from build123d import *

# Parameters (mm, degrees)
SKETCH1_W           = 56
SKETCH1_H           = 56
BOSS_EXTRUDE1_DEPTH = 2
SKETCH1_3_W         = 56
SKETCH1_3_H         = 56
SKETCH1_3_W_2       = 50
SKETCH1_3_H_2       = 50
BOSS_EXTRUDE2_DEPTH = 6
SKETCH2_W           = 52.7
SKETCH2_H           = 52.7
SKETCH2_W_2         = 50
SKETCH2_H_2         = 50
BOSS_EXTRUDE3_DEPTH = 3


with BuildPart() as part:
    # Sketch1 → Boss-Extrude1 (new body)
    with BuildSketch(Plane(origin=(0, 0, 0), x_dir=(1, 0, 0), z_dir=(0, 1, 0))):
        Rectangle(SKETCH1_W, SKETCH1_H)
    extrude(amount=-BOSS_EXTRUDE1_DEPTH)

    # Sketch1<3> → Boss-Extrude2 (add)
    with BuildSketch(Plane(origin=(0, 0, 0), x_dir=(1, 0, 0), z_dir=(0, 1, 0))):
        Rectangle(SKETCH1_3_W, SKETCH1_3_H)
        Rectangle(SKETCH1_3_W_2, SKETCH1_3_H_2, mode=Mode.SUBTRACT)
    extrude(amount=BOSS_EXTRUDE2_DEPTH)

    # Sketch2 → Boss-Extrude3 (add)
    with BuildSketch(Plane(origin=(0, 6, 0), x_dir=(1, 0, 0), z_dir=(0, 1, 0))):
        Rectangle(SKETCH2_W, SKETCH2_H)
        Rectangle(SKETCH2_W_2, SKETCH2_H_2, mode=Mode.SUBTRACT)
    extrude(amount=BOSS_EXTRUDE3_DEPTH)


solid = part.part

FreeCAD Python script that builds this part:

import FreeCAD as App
import Part
import Sketcher
from FreeCAD import Vector

doc = App.newDocument("Part")
body = doc.addObject("PartDesign::Body", "Body")

# Sketch on XZ plane
sketch1 = body.newObject("Sketcher::SketchObject", "Sketch")
sketch1.AttachmentSupport = (doc.getObject("XZ_Plane"), [""])
sketch1.MapMode = "FlatFace"
sketch1.addGeometry(Part.LineSegment(Vector(-28, -28, 0), Vector(-28, 28, 0)), False)
sketch1.addGeometry(Part.LineSegment(Vector(-28, 28, 0), Vector(28, 28, 0)), False)
sketch1.addGeometry(Part.LineSegment(Vector(28, 28, 0), Vector(28, -28, 0)), False)
sketch1.addGeometry(Part.LineSegment(Vector(28, -28, 0), Vector(-28, -28, 0)), False)
sketch1.addConstraint(Sketcher.Constraint("Coincident", 0, 2, 1, 1))
sketch1.addConstraint(Sketcher.Constraint("Coincident", 1, 2, 2, 1))
sketch1.addConstraint(Sketcher.Constraint("Coincident", 2, 2, 3, 1))
sketch1.addConstraint(Sketcher.Constraint("Coincident", 3, 2, 0, 1))
sketch1.addConstraint(Sketcher.Constraint("Vertical", 0))
sketch1.addConstraint(Sketcher.Constraint("Horizontal", 1))
sketch1.addConstraint(Sketcher.Constraint("Vertical", 2))
sketch1.addConstraint(Sketcher.Constraint("Horizontal", 3))
sketch1.addConstraint(Sketcher.Constraint("Symmetric", 0, 2, 2, 2, -1, 1))
sketch1.addConstraint(Sketcher.Constraint("Equal", 3, 0))
sketch1.addConstraint(Sketcher.Constraint("DistanceX", 1, 1, 1, 2, 56.0))
pad1 = body.newObject("PartDesign::Pad", "Pad")
pad1.Profile = sketch1
pad1.Length = 2

# Sketch on XZ plane
sketch2 = body.newObject("Sketcher::SketchObject", "Sketch001")
sketch2.AttachmentSupport = (doc.getObject("XZ_Plane"), [""])
sketch2.MapMode = "FlatFace"
sketch2.addGeometry(Part.LineSegment(Vector(-28, -28, 0), Vector(-28, 28, 0)), False)
sketch2.addGeometry(Part.LineSegment(Vector(-28, 28, 0), Vector(28, 28, 0)), False)
sketch2.addGeometry(Part.LineSegment(Vector(28, 28, 0), Vector(28, -28, 0)), False)
sketch2.addGeometry(Part.LineSegment(Vector(28, -28, 0), Vector(-28, -28, 0)), False)
sketch2.addGeometry(Part.LineSegment(Vector(25, 25, 0), Vector(-25, 25, 0)), False)
sketch2.addGeometry(Part.LineSegment(Vector(-25, 25, 0), Vector(-25, -25, 0)), False)
sketch2.addGeometry(Part.LineSegment(Vector(-25, -25, 0), Vector(25, -25, 0)), False)
sketch2.addGeometry(Part.LineSegment(Vector(25, -25, 0), Vector(25, 25, 0)), False)
sketch2.addConstraint(Sketcher.Constraint("Coincident", 0, 2, 1, 1))
sketch2.addConstraint(Sketcher.Constraint("Coincident", 1, 2, 2, 1))
sketch2.addConstraint(Sketcher.Constraint("Coincident", 2, 2, 3, 1))
sketch2.addConstraint(Sketcher.Constraint("Coincident", 3, 2, 0, 1))
sketch2.addConstraint(Sketcher.Constraint("Coincident", 4, 2, 5, 1))
sketch2.addConstraint(Sketcher.Constraint("Coincident", 5, 2, 6, 1))
sketch2.addConstraint(Sketcher.Constraint("Coincident", 6, 2, 7, 1))
sketch2.addConstraint(Sketcher.Constraint("Coincident", 7, 2, 4, 1))
sketch2.addConstraint(Sketcher.Constraint("Vertical", 0))
sketch2.addConstraint(Sketcher.Constraint("Horizontal", 1))
sketch2.addConstraint(Sketcher.Constraint("Vertical", 2))
sketch2.addConstraint(Sketcher.Constraint("Horizontal", 3))
sketch2.addConstraint(Sketcher.Constraint("Horizontal", 4))
sketch2.addConstraint(Sketcher.Constraint("Vertical", 5))
sketch2.addConstraint(Sketcher.Constraint("Horizontal", 6))
sketch2.addConstraint(Sketcher.Constraint("Vertical", 7))
sketch2.addConstraint(Sketcher.Constraint("Symmetric", 0, 2, 2, 2, -1, 1))
sketch2.addConstraint(Sketcher.Constraint("Symmetric", 4, 2, 6, 2, -1, 1))
sketch2.addConstraint(Sketcher.Constraint("Equal", 3, 0))
sketch2.addConstraint(Sketcher.Constraint("Equal", 6, 5))
sketch2.addConstraint(Sketcher.Constraint("DistanceX", 1, 1, 1, 2, 56.0))
sketch2.addConstraint(Sketcher.Constraint("DistanceX", 4, 2, 4, 1, 50.0))
pad2 = body.newObject("PartDesign::Pad", "Pad001")
pad2.Profile = sketch2
pad2.Length = 6
pad2.Reversed = True

# Sketch on XZ plane
sketch3 = body.newObject("Sketcher::SketchObject", "Sketch002")
sketch3.AttachmentSupport = (doc.getObject("XZ_Plane"), [""])
sketch3.MapMode = "FlatFace"
sketch3.AttachmentOffset = App.Placement(Vector(0, 0, -6), App.Rotation())
sketch3.addGeometry(Part.LineSegment(Vector(-26.35, -26.35, 0), Vector(-26.35, 26.35, 0)), False)
sketch3.addGeometry(Part.LineSegment(Vector(-26.35, 26.35, 0), Vector(26.35, 26.35, 0)), False)
sketch3.addGeometry(Part.LineSegment(Vector(26.35, 26.35, 0), Vector(26.35, -26.35, 0)), False)
sketch3.addGeometry(Part.LineSegment(Vector(26.35, -26.35, 0), Vector(-26.35, -26.35, 0)), False)
sketch3.addGeometry(Part.LineSegment(Vector(25, 25, 0), Vector(-25, 25, 0)), False)
sketch3.addGeometry(Part.LineSegment(Vector(-25, 25, 0), Vector(-25, -25, 0)), False)
sketch3.addGeometry(Part.LineSegment(Vector(-25, -25, 0), Vector(25, -25, 0)), False)
sketch3.addGeometry(Part.LineSegment(Vector(25, -25, 0), Vector(25, 25, 0)), False)
sketch3.addConstraint(Sketcher.Constraint("Coincident", 0, 2, 1, 1))
sketch3.addConstraint(Sketcher.Constraint("Coincident", 1, 2, 2, 1))
sketch3.addConstraint(Sketcher.Constraint("Coincident", 2, 2, 3, 1))
sketch3.addConstraint(Sketcher.Constraint("Coincident", 3, 2, 0, 1))
sketch3.addConstraint(Sketcher.Constraint("Coincident", 4, 2, 5, 1))
sketch3.addConstraint(Sketcher.Constraint("Coincident", 5, 2, 6, 1))
sketch3.addConstraint(Sketcher.Constraint("Coincident", 6, 2, 7, 1))
sketch3.addConstraint(Sketcher.Constraint("Coincident", 7, 2, 4, 1))
sketch3.addConstraint(Sketcher.Constraint("Vertical", 0))
sketch3.addConstraint(Sketcher.Constraint("Horizontal", 1))
sketch3.addConstraint(Sketcher.Constraint("Vertical", 2))
sketch3.addConstraint(Sketcher.Constraint("Horizontal", 3))
sketch3.addConstraint(Sketcher.Constraint("Horizontal", 4))
sketch3.addConstraint(Sketcher.Constraint("Vertical", 5))
sketch3.addConstraint(Sketcher.Constraint("Horizontal", 6))
sketch3.addConstraint(Sketcher.Constraint("Vertical", 7))
sketch3.addConstraint(Sketcher.Constraint("Symmetric", 0, 2, 2, 2, -1, 1))
sketch3.addConstraint(Sketcher.Constraint("Symmetric", 4, 2, 6, 2, -1, 1))
sketch3.addConstraint(Sketcher.Constraint("Equal", 3, 0))
sketch3.addConstraint(Sketcher.Constraint("Equal", 6, 5))
sketch3.addConstraint(Sketcher.Constraint("DistanceX", 4, 2, 4, 1, 50.0))
sketch3.addConstraint(Sketcher.Constraint("DistanceX", 1, 1, 1, 2, 52.7))
pad3 = body.newObject("PartDesign::Pad", "Pad002")
pad3.Profile = sketch3
pad3.Length = 3
pad3.Reversed = True

doc.recompute()
